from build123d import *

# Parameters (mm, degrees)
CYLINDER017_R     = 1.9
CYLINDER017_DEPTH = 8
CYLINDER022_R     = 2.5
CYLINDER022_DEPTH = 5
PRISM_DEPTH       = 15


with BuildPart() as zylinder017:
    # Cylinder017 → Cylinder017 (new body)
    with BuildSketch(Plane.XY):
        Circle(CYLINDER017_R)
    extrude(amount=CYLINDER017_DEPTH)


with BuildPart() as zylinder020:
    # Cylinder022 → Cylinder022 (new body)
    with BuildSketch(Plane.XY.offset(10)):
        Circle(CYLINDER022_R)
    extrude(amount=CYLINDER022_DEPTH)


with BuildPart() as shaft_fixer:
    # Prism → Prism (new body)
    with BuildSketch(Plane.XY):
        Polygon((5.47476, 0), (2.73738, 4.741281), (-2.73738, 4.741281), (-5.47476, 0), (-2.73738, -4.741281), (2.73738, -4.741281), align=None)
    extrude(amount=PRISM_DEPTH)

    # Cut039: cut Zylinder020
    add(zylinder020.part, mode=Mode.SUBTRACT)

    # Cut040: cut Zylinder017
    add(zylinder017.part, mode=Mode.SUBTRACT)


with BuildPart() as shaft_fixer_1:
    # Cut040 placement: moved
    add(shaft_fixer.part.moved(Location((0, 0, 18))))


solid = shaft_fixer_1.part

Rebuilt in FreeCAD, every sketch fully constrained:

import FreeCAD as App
import Part
import Sketcher

V = App.Vector
Q = App.Units.Quantity

doc = App.newDocument("Part")
body = doc.addObject("PartDesign::Body", "Body")

# Sketch on XY plane
sketch1 = body.newObject("Sketcher::SketchObject", "Sketch")
sketch1.AttachmentSupport = (doc.getObject("XY_Plane"), [""])
sketch1.MapMode = "FlatFace"
sketch1.addGeometry(Part.Circle(V(0, 0, 0), V(0, 0, 1), 1.9), False)
sketch1.addConstraint([
    Sketcher.Constraint("Coincident", 0, 3, -1, 1),
    Sketcher.Constraint("Diameter", 0, Q("3.8 mm")),
])
pad1 = body.newObject("PartDesign::Pad", "Pad")
pad1.Profile = sketch1
pad1.Length = 8
body2 = doc.addObject("PartDesign::Body", "Body001")

# Sketch on XY plane
sketch2 = body2.newObject("Sketcher::SketchObject", "Sketch001")
sketch2.AttachmentSupport = (doc.getObject("XY_Plane001"), [""])
sketch2.MapMode = "FlatFace"
sketch2.AttachmentOffset = App.Placement(V(0, 0, 10), App.Rotation())
sketch2.addGeometry(Part.Circle(V(0, 0, 0), V(0, 0, 1), 2.5), False)
sketch2.addConstraint([
    Sketcher.Constraint("Coincident", 0, 3, -1, 1),
    Sketcher.Constraint("Diameter", 0, Q("5 mm")),
])
pad2 = body2.newObject("PartDesign::Pad", "Pad001")
pad2.Profile = sketch2
pad2.Length = 5
body3 = doc.addObject("PartDesign::Body", "Body002")

# Sketch on XY plane
sketch3 = body3.newObject("Sketcher::SketchObject", "Sketch002")
sketch3.AttachmentSupport = (doc.getObject("XY_Plane002"), [""])
sketch3.MapMode = "FlatFace"
sketch3.addGeometry([
    Part.LineSegment(V(5, 0, 0), V(3, 5, 0)),  # 0
    Part.LineSegment(V(3, 5, 0), V(-3, 5, 0)),  # 1
    Part.LineSegment(V(-3, 5, 0), V(-5, 0, 0)),  # 2
    Part.LineSegment(V(-5, 0, 0), V(-3, -5, 0)),  # 3
    Part.LineSegment(V(-3, -5, 0), V(3, -5, 0)),  # 4
    Part.LineSegment(V(3, -5, 0), V(5, 0, 0)),  # 5
], False)
sketch3.addConstraint([
    Sketcher.Constraint("Coincident", 0, 2, 1, 1),
    Sketcher.Constraint("Coincident", 1, 2, 2, 1),
    Sketcher.Constraint("Coincident", 2, 2, 3, 1),
    Sketcher.Constraint("Coincident", 3, 2, 4, 1),
    Sketcher.Constraint("Coincident", 4, 2, 5, 1),
    Sketcher.Constraint("Coincident", 5, 2, 0, 1),
    Sketcher.Constraint("Horizontal", 1),
    Sketcher.Constraint("Horizontal", 4),
    Sketcher.Constraint("Symmetric", 0, 2, 3, 2, -1, 1),
    Sketcher.Constraint("Symmetric", 2, 2, 5, 2, -1, 1),
    Sketcher.Constraint("PointOnObject", 2, 2, -1),
    Sketcher.Constraint("Parallel", 2, 5),
    Sketcher.Constraint("Vertical", 1, 2, 3, 2),
    Sketcher.Constraint("Angle", 0, Q("120.000001 deg")),
    Sketcher.Constraint("DistanceX", 1, 2, 1, 1, Q("5.47476 mm")),
    Sketcher.Constraint("Distance", 0, Q("5.47476 mm")),
])
pad3 = body3.newObject("PartDesign::Pad", "Pad002")
pad3.Profile = sketch3
pad3.Length = 15
doc.recompute()

boolean = body3.newObject("PartDesign::Boolean", "Boolean")
boolean.Type = "Cut"
boolean.addObjects([body2])
doc.recompute()

boolean2 = body3.newObject("PartDesign::Boolean", "Boolean001")
boolean2.Type = "Cut"
boolean2.addObjects([body])
body4 = doc.addObject("PartDesign::Body", "Body003")
doc.recompute()

body3.Placement = App.Placement(V(0, 0, 18), App.Rotation(V(0, 0, 1), 0))
boolean3 = body4.newObject("PartDesign::Boolean", "Boolean002")
boolean3.Type = "Fuse"
boolean3.addObjects([body3])

doc.recompute()
